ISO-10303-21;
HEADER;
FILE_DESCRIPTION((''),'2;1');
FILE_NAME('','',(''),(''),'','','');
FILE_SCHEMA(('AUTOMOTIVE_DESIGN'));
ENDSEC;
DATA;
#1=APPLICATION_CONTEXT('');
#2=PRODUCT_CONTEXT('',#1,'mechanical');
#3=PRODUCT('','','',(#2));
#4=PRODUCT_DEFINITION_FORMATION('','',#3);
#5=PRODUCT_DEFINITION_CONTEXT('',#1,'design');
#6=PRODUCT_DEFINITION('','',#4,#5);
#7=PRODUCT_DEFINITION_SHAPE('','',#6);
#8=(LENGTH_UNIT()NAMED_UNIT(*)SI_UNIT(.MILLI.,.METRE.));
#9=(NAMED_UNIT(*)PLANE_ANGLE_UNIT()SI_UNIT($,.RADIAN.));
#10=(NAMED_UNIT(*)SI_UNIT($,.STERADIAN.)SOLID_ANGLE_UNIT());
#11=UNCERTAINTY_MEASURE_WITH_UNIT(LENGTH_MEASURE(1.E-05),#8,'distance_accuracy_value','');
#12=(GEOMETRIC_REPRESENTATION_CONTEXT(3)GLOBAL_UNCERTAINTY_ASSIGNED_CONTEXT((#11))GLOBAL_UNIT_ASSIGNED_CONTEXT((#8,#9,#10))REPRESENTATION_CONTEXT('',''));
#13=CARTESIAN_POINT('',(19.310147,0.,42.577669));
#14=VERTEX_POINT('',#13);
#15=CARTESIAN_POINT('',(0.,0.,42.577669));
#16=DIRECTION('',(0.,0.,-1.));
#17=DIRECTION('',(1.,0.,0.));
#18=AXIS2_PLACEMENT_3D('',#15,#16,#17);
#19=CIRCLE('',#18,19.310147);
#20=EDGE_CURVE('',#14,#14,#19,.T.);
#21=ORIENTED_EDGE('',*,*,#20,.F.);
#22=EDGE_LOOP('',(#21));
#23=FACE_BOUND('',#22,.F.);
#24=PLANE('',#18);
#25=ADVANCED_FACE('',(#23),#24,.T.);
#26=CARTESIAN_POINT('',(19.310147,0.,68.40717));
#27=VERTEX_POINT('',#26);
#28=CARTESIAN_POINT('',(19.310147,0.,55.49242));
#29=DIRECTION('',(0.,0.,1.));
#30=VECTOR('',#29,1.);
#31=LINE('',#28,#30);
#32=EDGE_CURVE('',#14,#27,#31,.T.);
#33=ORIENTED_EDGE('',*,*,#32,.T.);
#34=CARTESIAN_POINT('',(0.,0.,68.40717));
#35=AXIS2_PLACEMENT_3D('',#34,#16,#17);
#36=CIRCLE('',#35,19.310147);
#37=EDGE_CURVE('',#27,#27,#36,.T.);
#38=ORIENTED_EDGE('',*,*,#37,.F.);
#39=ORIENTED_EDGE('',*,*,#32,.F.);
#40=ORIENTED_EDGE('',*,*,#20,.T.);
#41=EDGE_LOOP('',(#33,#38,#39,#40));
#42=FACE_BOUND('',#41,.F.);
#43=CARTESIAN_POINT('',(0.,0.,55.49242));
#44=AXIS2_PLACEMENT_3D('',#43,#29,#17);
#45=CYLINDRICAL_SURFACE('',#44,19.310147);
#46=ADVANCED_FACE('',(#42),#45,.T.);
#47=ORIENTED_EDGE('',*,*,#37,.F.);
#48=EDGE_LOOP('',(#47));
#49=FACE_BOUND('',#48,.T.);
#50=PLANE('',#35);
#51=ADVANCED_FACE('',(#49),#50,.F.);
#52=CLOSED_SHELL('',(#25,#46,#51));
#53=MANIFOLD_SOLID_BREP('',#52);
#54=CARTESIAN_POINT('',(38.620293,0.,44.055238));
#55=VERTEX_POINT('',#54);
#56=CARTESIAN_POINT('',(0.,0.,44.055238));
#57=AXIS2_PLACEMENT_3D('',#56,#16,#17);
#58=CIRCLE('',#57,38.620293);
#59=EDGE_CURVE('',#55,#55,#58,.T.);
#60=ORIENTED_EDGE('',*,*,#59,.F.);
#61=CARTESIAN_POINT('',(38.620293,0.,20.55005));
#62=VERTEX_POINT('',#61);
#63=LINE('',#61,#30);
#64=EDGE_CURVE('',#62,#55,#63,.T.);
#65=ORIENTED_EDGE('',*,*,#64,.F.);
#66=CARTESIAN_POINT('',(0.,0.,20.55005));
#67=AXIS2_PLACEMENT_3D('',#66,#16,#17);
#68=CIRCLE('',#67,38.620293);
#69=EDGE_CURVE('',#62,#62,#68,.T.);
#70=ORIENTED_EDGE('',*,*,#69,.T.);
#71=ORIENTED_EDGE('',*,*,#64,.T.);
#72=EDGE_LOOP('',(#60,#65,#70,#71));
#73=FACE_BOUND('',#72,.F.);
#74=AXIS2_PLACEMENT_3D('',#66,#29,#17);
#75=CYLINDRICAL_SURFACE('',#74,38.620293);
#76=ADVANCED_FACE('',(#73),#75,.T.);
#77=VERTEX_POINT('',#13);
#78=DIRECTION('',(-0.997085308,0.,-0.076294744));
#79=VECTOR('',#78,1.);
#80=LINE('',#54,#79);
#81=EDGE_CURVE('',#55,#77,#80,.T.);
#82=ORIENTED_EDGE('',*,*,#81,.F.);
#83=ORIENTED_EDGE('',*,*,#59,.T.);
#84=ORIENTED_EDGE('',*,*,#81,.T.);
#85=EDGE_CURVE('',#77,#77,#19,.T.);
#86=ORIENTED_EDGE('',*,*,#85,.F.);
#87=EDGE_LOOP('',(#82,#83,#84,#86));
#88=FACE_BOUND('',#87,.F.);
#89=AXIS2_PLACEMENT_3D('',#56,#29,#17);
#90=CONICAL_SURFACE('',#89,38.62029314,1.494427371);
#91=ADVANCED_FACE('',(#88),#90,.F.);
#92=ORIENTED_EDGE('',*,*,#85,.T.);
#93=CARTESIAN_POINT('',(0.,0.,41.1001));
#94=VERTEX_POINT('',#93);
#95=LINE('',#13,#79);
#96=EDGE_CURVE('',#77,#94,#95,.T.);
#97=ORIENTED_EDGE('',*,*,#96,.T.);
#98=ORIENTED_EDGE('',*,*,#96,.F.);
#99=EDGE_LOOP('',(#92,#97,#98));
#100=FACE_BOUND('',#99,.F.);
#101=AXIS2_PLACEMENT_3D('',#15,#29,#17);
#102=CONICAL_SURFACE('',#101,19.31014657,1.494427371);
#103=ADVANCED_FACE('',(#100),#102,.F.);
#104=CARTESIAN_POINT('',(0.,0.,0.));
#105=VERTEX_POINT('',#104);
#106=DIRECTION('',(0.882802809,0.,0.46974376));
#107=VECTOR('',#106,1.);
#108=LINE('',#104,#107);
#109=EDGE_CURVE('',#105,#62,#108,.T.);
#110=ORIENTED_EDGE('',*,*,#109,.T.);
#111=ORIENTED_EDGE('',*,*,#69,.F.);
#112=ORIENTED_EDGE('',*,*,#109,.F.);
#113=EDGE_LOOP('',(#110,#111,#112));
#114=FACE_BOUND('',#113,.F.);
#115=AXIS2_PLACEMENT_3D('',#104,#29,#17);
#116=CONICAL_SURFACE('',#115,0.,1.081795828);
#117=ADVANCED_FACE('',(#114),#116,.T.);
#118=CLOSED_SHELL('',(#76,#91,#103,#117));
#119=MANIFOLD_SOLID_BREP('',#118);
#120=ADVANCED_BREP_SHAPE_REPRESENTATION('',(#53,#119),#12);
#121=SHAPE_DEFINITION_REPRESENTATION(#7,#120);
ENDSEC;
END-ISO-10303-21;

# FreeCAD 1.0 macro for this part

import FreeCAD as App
import Part
import Sketcher

V = App.Vector

doc = App.newDocument("Part")
body = doc.addObject("PartDesign::Body", "Body")

sketch1 = doc.addObject("Sketcher::SketchObject", "Sketch")
body.addObject(sketch1)
sketch1.AttachmentSupport = (doc.XZ_Plane, [""])
sketch1.MapMode = "FlatFace"
sketch1.addGeometry(Part.LineSegment(V(0, 41, 0), V(0, 0, 0)), False)
sketch1.addGeometry(Part.LineSegment(V(0, 0, 0), V(39, 21, 0)), False)
sketch1.addGeometry(Part.LineSegment(V(39, 21, 0), V(39, 44, 0)), False)
sketch1.addGeometry(Part.LineSegment(V(39, 44, 0), V(19, 43, 0)), False)
sketch1.addGeometry(Part.LineSegment(V(19, 43, 0), V(0, 41, 0)), False)
sketch1.addConstraint(Sketcher.Constraint("Coincident", 0, 2, 1, 1))
sketch1.addConstraint(Sketcher.Constraint("Coincident", 1, 2, 2, 1))
sketch1.addConstraint(Sketcher.Constraint("Coincident", 2, 2, 3, 1))
sketch1.addConstraint(Sketcher.Constraint("Coincident", 3, 2, 4, 1))
sketch1.addConstraint(Sketcher.Constraint("Coincident", 4, 2, 0, 1))
sketch1.addConstraint(Sketcher.Constraint("Vertical", 0))
sketch1.addConstraint(Sketcher.Constraint("Vertical", 2))
sketch1.addConstraint(Sketcher.Constraint("Coincident", 0, 2, -1, 1))
sketch1.addConstraint(Sketcher.Constraint("Parallel", 3, 4))
sketch1.addConstraint(Sketcher.Constraint("Equal", 3, 4))
sketch1.addConstraint(Sketcher.Constraint("DistanceY", 0, 2, 0, 1, 41.1001))
sketch1.addConstraint(Sketcher.Constraint("DistanceY", 2, 1, 2, 2, 23.505189))
sketch1.addConstraint(Sketcher.Constraint("Distance", 1, 43.747361))
sketch1.addConstraint(Sketcher.Constraint("DistanceY", -1, 1, 1, 2, 20.55005))
revolution = doc.addObject("PartDesign::Revolution", "Revolution")
body.addObject(revolution)
revolution.Profile = sketch1
revolution.ReferenceAxis = (sketch1, ["V_Axis"])
revolution.Angle = 360
body2 = doc.addObject("PartDesign::Body", "Body001")

sketch2 = doc.addObject("Sketcher::SketchObject", "Sketch001")
body2.addObject(sketch2)
sketch2.AttachmentSupport = (doc.getObject("XZ_Plane001"), [""])
sketch2.MapMode = "FlatFace"
sketch2.addGeometry(Part.LineSegment(V(0, 68, 0), V(0, 43, 0)), False)
sketch2.addGeometry(Part.LineSegment(V(0, 43, 0), V(19, 43, 0)), False)
sketch2.addGeometry(Part.LineSegment(V(19, 43, 0), V(19, 68, 0)), False)
sketch2.addGeometry(Part.LineSegment(V(19, 68, 0), V(0, 68, 0)), False)
sketch2.addConstraint(Sketcher.Constraint("Coincident", 0, 2, 1, 1))
sketch2.addConstraint(Sketcher.Constraint("Coincident", 1, 2, 2, 1))
sketch2.addConstraint(Sketcher.Constraint("Coincident", 2, 2, 3, 1))
sketch2.addConstraint(Sketcher.Constraint("Coincident", 3, 2, 0, 1))
sketch2.addConstraint(Sketcher.Constraint("Vertical", 0))
sketch2.addConstraint(Sketcher.Constraint("Horizontal", 1))
sketch2.addConstraint(Sketcher.Constraint("Vertical", 2))
sketch2.addConstraint(Sketcher.Constraint("Horizontal", 3))
sketch2.addConstraint(Sketcher.Constraint("PointOnObject", 0, 2, -2))
sketch2.addConstraint(Sketcher.Constraint("DistanceY", 0, 2, 0, 1, 25.829501))
sketch2.addConstraint(Sketcher.Constraint("DistanceX", 1, 1, 1, 2, 19.310147))
sketch2.addConstraint(Sketcher.Constraint("DistanceY", -1, 1, 0, 2, 42.577669))
revolution2 = doc.addObject("PartDesign::Revolution", "Revolution001")
body2.addObject(revolution2)
revolution2.Profile = sketch2
revolution2.ReferenceAxis = (sketch2, ["V_Axis"])
revolution2.Angle = 360

doc.recompute()
